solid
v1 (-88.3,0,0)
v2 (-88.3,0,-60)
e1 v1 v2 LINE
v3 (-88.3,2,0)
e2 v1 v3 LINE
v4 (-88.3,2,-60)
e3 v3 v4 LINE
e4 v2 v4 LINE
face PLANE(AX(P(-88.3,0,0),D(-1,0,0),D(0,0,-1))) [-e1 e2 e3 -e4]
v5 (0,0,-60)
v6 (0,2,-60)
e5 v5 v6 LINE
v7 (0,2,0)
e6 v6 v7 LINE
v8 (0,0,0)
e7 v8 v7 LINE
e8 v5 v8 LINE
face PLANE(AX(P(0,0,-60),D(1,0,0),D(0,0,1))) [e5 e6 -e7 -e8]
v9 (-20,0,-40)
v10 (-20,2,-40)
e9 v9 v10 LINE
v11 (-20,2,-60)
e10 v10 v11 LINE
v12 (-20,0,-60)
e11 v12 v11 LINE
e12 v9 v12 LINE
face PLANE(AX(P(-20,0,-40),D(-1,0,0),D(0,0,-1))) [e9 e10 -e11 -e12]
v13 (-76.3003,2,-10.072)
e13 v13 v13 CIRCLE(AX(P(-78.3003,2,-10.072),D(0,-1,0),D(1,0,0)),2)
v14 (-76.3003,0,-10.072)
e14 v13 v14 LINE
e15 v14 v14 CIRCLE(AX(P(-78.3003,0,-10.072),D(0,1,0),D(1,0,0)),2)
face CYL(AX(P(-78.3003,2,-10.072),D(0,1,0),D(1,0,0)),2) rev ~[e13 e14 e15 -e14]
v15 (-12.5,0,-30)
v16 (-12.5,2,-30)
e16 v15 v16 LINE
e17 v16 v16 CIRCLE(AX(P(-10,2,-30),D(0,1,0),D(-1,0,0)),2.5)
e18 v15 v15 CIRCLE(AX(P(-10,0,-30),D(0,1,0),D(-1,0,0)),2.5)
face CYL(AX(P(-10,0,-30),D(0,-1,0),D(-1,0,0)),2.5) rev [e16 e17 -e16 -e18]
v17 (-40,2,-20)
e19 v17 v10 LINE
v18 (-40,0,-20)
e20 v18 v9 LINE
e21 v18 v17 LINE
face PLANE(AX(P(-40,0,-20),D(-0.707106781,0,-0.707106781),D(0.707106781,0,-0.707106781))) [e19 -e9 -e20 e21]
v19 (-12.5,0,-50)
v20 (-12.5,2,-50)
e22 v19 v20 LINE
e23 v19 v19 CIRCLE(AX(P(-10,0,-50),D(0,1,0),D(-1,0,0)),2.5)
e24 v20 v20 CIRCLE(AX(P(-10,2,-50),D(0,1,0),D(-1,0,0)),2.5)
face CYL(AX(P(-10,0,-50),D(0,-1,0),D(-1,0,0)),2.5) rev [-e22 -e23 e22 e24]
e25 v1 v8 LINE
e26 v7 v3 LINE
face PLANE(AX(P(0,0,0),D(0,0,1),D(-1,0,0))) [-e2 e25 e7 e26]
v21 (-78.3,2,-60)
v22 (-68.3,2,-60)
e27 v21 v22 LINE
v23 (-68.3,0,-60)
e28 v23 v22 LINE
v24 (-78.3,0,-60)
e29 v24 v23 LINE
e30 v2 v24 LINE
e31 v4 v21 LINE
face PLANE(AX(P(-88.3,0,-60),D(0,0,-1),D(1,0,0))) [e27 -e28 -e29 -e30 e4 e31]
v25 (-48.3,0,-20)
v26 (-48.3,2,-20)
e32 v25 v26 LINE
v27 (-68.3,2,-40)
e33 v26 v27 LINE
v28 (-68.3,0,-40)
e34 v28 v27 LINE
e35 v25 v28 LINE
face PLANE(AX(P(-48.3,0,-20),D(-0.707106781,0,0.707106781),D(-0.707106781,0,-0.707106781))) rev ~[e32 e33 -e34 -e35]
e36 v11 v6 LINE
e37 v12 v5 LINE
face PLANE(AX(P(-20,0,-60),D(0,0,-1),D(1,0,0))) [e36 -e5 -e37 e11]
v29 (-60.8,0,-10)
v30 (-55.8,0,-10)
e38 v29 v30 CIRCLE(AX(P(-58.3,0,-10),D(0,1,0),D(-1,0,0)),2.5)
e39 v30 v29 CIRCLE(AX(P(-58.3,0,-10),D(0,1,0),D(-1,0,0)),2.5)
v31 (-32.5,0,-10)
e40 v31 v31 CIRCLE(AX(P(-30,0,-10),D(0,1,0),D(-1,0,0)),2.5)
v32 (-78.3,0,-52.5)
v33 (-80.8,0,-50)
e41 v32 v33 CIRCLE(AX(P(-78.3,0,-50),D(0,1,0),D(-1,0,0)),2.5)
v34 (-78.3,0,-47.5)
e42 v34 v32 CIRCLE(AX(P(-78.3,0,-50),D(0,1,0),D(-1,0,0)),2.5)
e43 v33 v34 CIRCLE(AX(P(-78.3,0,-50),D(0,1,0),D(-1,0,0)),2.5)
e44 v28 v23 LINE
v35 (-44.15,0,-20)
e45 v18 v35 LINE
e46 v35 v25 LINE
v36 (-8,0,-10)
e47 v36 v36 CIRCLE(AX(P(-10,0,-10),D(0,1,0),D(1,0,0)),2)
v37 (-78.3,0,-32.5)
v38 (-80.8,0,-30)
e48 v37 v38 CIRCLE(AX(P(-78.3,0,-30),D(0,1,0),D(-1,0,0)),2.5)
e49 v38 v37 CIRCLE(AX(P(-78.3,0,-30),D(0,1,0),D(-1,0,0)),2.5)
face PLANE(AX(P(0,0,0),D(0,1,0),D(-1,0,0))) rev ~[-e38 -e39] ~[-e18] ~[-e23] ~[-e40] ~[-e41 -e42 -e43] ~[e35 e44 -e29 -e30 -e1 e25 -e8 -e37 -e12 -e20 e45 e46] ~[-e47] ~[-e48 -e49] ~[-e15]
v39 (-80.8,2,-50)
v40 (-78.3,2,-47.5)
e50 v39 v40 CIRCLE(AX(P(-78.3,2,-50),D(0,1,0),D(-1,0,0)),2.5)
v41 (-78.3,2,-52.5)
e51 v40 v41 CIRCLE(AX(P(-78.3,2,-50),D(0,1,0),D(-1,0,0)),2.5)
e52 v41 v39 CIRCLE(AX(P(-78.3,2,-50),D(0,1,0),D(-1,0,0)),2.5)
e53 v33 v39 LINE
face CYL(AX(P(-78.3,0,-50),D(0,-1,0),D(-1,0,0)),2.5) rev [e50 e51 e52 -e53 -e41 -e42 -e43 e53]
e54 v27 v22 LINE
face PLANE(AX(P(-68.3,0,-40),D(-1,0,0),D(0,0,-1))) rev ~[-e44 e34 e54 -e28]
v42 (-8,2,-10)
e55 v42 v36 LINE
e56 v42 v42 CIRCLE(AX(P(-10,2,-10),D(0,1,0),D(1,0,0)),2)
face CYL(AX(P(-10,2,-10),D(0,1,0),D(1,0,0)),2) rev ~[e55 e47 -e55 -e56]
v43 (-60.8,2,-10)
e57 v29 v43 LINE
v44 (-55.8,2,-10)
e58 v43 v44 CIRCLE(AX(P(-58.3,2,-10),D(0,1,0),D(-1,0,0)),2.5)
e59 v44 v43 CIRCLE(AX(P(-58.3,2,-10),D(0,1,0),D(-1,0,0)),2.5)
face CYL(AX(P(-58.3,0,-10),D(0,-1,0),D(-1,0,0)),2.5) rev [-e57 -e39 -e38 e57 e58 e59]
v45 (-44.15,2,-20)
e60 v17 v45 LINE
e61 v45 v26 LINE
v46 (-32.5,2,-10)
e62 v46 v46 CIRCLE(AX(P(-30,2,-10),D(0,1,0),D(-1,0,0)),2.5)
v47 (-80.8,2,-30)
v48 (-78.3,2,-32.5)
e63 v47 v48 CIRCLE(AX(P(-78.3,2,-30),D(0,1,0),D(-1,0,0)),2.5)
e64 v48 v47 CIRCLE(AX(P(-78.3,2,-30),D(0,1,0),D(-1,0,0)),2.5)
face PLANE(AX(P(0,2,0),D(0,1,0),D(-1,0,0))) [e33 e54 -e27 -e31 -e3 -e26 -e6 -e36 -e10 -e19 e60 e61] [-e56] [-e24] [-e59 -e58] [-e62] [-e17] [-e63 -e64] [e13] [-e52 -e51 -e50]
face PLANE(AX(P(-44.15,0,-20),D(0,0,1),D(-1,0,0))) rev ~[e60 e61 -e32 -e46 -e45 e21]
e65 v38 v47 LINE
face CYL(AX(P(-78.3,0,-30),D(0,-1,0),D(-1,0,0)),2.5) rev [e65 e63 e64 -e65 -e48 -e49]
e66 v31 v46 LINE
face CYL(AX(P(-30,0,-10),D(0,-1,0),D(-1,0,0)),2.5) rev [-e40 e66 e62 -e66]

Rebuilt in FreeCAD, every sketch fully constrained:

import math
import FreeCAD as App
import Part
import Sketcher

doc = App.newDocument("Part")
body = doc.addObject("PartDesign::Body", "Body")

# Sketch on XZ plane
sketch1 = body.newObject("Sketcher::SketchObject", "Sketch")
sketch1.AttachmentSupport = (doc.getObject("XZ_Plane"), [""])
sketch1.MapMode = "FlatFace"
sketch1.addGeometry([
    Part.LineSegment(App.Vector(0, 0, 0), App.Vector(0, -60, 0)),  # 0
    Part.LineSegment(App.Vector(0, -60, 0), App.Vector(-20, -60, 0)),  # 1
    Part.LineSegment(App.Vector(-20, -60, 0), App.Vector(-20, -40, 0)),  # 2
    Part.LineSegment(App.Vector(-20, -40, 0), App.Vector(-40, -20, 0)),  # 3
    Part.LineSegment(App.Vector(-40, -20, 0), App.Vector(-44.15, -20, 0)),  # 4
    Part.LineSegment(App.Vector(-44.15, -20, 0), App.Vector(-48.3, -20, 0)),  # 5
    Part.LineSegment(App.Vector(-48.3, -20, 0), App.Vector(-68.3, -40, 0)),  # 6
    Part.LineSegment(App.Vector(-68.3, -40, 0), App.Vector(-68.3, -60, 0)),  # 7
    Part.LineSegment(App.Vector(-68.3, -60, 0), App.Vector(-78.3, -60, 0)),  # 8
    Part.LineSegment(App.Vector(-78.3, -60, 0), App.Vector(-88.3, -60, 0)),  # 9
    Part.LineSegment(App.Vector(-88.3, -60, 0), App.Vector(-88.3, 0, 0)),  # 10
    Part.LineSegment(App.Vector(-88.3, 0, 0), App.Vector(0, 0, 0)),  # 11
    Part.Circle(App.Vector(-10, -50, 0), App.Vector(0, 0, 1), 2.5),  # 12
    Part.Circle(App.Vector(-10, -30, 0), App.Vector(0, 0, 1), 2.5),  # 13
    Part.Circle(App.Vector(-30, -10, 0), App.Vector(0, 0, 1), 2.5),  # 14
    Part.Circle(App.Vector(-58.3, -10, 0), App.Vector(0, 0, 1), 2.5),  # 15
    Part.ArcOfCircle(Part.Circle(App.Vector(-78.3, -50, 0), App.Vector(0, 0, 1), 2.5), math.radians(-90), math.radians(90)),  # 16
    Part.ArcOfCircle(Part.Circle(App.Vector(-78.3, -50, 0), App.Vector(0, 0, 1), 2.5), math.radians(90), math.radians(270)),  # 17
    Part.Circle(App.Vector(-78.3, -30, 0), App.Vector(0, 0, 1), 2.5),  # 18
], False)
sketch1.addConstraint([
    Sketcher.Constraint("Coincident", 0, 2, 1, 1),
    Sketcher.Constraint("Coincident", 1, 2, 2, 1),
    Sketcher.Constraint("Coincident", 2, 2, 3, 1),
    Sketcher.Constraint("Coincident", 3, 2, 4, 1),
    Sketcher.Constraint("Coincident", 4, 2, 5, 1),
    Sketcher.Constraint("Coincident", 5, 2, 6, 1),
    Sketcher.Constraint("Coincident", 6, 2, 7, 1),
    Sketcher.Constraint("Coincident", 7, 2, 8, 1),
    Sketcher.Constraint("Coincident", 8, 2, 9, 1),
    Sketcher.Constraint("Coincident", 9, 2, 10, 1),
    Sketcher.Constraint("Coincident", 10, 2, 11, 1),
    Sketcher.Constraint("Coincident", 11, 2, 0, 1),
    Sketcher.Constraint("Tangent", 16, 1, 17, 2),
    Sketcher.Constraint("Coincident", 17, 1, 16, 2),
    Sketcher.Constraint("Vertical", 0),
    Sketcher.Constraint("Horizontal", 1),
    Sketcher.Constraint("Vertical", 2),
    Sketcher.Constraint("Horizontal", 4),
    Sketcher.Constraint("Horizontal", 5),
    Sketcher.Constraint("Vertical", 7),
    Sketcher.Constraint("Horizontal", 8),
    Sketcher.Constraint("Horizontal", 9),
    Sketcher.Constraint("Vertical", 10),
    Sketcher.Constraint("Horizontal", 11),
    Sketcher.Constraint("Coincident", 11, 2, -1, 1),
    Sketcher.Constraint("Equal", 12, 13),
    Sketcher.Constraint("Equal", 13, 14),
    Sketcher.Constraint("Equal", 14, 15),
    Sketcher.Constraint("Equal", 15, 16),
    Sketcher.Constraint("Equal", 17, 18),
    Sketcher.Constraint("Perpendicular", 3, 6),
    Sketcher.Constraint("Horizontal", 14, 3, 15, 3),
    Sketcher.Constraint("Horizontal", 12, 3, 16, 3),
    Sketcher.Constraint("Horizontal", 13, 3, 18, 3),
    Sketcher.Constraint("Horizontal", 2, 2, 6, 2),
    Sketcher.Constraint("Horizontal", 1, 2, 7, 2),
    Sketcher.Constraint("Vertical", 12, 3, 13, 3),
    Sketcher.Constraint("Vertical", 17, 3, 18, 3),
    Sketcher.Constraint("Vertical", 18, 3, 8, 2),
    Sketcher.Constraint("Vertical", 8, 2, 16, 1),
    Sketcher.Constraint("Vertical", 16, 1, 17, 1),
    Sketcher.Constraint("Equal", 4, 5),
    Sketcher.Constraint("Equal", 8, 9),
    Sketcher.Constraint("Equal", 1, 2),
    Sketcher.Constraint("Equal", 3, 6),
    Sketcher.Constraint("Diameter", 12, 5.0),
    Sketcher.Constraint("DistanceX", 1, 2, 1, 1, 20.0),
    Sketcher.Constraint("DistanceY", 0, 2, 0, 1, 60.0),
    Sketcher.Constraint("DistanceX", 11, 1, 11, 2, 88.3),
    Sketcher.Constraint("DistanceY", 3, 2, -1, 1, 20.0),
    Sketcher.Constraint("DistanceY", 12, 3, 13, 3, 20.0),
    Sketcher.Constraint("DistanceX", 14, 3, 13, 3, 20.0),
    Sketcher.Constraint("DistanceY", 13, 3, 14, 3, 20.0),
    Sketcher.Constraint("DistanceX", 16, 3, 15, 3, 20.0),
    Sketcher.Constraint("DistanceX", 9, 2, 7, 2, 20.0),
    Sketcher.Constraint("DistanceX", 12, 3, -1, 1, 10.0),
    Sketcher.Constraint("DistanceY", 12, 3, -1, 1, 50.0),
])
pad1 = body.newObject("PartDesign::Pad", "Pad")
pad1.Profile = sketch1
pad1.Length = 2
pad1.Reversed = True

# Sketch on XZ plane
sketch2 = body.newObject("Sketcher::SketchObject", "Sketch001")
sketch2.AttachmentSupport = (doc.getObject("XZ_Plane"), [""])
sketch2.MapMode = "FlatFace"
sketch2.AttachmentOffset = App.Placement(App.Vector(0, 0, -2), App.Rotation())
sketch2.addGeometry([
    Part.Circle(App.Vector(-78.3003, -10.072, 0), App.Vector(0, 0, 1), 2),
    Part.Circle(App.Vector(-10, -10, 0), App.Vector(0, 0, 1), 2),
], False)
sketch2.addConstraint([
    Sketcher.Constraint("Equal", 0, 1),
    Sketcher.Constraint("Diameter", 0, 4.0),
    Sketcher.Constraint("DistanceX", 1, 3, -1, 1, 10.0),
    Sketcher.Constraint("DistanceY", 1, 3, -1, 1, 10.0),
    Sketcher.Constraint("DistanceY", 0, 3, -1, 1, 10.072),
    Sketcher.Constraint("DistanceX", 0, 3, -1, 1, 78.3003),
])
pocket1 = body.newObject("PartDesign::Pocket", "Pocket")
pocket1.Profile = sketch2
pocket1.Length = 2
pocket1.Reversed = True

doc.recompute()
